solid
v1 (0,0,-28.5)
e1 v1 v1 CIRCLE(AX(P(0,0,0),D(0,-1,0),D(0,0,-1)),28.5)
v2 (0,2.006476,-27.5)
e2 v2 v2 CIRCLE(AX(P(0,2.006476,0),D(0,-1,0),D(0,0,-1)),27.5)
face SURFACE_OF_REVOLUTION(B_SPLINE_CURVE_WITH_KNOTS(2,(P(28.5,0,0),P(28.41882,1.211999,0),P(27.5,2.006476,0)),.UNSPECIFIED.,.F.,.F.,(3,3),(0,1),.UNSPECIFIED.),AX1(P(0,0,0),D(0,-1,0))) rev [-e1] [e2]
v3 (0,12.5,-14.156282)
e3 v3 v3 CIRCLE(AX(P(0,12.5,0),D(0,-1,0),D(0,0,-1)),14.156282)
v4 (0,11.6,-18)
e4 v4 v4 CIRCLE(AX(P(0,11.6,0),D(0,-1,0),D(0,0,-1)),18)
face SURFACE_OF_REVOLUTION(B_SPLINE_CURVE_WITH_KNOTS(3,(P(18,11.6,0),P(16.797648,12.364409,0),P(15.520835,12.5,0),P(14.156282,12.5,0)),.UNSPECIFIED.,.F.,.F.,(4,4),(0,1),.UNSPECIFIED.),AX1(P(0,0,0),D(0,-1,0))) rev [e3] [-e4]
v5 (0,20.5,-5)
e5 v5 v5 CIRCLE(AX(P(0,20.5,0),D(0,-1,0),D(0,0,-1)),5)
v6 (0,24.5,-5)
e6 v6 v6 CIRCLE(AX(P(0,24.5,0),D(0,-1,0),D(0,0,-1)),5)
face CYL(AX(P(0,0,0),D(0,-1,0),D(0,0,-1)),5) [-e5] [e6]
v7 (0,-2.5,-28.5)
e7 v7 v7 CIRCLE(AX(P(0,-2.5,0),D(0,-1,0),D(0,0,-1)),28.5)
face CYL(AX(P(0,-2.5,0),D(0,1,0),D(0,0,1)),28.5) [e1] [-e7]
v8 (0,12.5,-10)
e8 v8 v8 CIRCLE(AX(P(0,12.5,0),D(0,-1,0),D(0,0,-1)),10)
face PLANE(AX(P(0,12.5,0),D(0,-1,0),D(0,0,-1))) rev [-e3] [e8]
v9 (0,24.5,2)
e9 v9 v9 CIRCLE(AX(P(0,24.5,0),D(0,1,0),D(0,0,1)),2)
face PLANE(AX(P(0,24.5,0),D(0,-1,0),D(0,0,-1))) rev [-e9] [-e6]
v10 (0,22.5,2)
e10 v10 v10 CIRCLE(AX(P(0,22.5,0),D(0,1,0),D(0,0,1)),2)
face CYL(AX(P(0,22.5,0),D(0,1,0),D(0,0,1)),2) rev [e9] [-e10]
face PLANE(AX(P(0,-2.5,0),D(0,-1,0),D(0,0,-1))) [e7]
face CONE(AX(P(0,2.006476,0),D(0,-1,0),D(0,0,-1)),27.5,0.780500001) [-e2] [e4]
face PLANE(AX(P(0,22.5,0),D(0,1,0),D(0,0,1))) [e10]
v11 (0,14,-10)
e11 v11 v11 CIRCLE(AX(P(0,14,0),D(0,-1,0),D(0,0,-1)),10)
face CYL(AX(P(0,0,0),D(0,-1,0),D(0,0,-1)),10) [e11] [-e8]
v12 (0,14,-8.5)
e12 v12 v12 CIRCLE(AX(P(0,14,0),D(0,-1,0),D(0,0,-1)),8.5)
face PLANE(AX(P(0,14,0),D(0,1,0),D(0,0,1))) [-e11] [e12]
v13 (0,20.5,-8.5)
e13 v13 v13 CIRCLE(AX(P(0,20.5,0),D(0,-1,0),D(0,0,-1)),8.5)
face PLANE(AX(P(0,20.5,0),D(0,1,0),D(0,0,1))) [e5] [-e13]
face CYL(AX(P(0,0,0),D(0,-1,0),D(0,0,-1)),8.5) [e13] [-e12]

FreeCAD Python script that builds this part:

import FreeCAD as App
import Part
import Sketcher

V = App.Vector

doc = App.newDocument("Part")
body = doc.addObject("PartDesign::Body", "Body")

# Sketch on XY plane
sketch1 = doc.addObject("Sketcher::SketchObject", "Sketch")
body.addObject(sketch1)
sketch1.AttachmentSupport = (doc.XY_Plane, [""])
sketch1.MapMode = "FlatFace"
sketch1.addGeometry(Part.LineSegment(V(0, 24.5, 0), V(0, 0, 0)), False)
sketch1.addGeometry(Part.LineSegment(V(0, 0, 0), V(28.5, 0, 0)), False)
sketch1.addGeometry(Part.BSplineCurve([V(28.5, 0, 0), V(28.41882, 1.211999, 0), V(27.5, 2.006476, 0)], [3, 3], [0, 1], False, 2, [1, 1, 1], False), False)
sketch1.addGeometry(Part.LineSegment(V(27.5, 2.006476, 0), V(18, 11.6, 0)), False)
sketch1.addGeometry(Part.BSplineCurve([V(18, 11.6, 0), V(16.797648, 12.364409, 0), V(15.520835, 12.5, 0), V(14.156282, 12.5, 0)], [4, 4], [0, 1], False, 3, [1, 1, 1, 1], False), False)
sketch1.addGeometry(Part.LineSegment(V(14.156282, 12.5, 0), V(10, 12.5, 0)), False)
sketch1.addGeometry(Part.LineSegment(V(10, 12.5, 0), V(10, 14, 0)), False)
sketch1.addGeometry(Part.LineSegment(V(10, 14, 0), V(8.5, 14, 0)), False)
sketch1.addGeometry(Part.LineSegment(V(8.5, 14, 0), V(8.5, 20.5, 0)), False)
sketch1.addGeometry(Part.LineSegment(V(8.5, 20.5, 0), V(5, 20.5, 0)), False)
sketch1.addGeometry(Part.LineSegment(V(5, 20.5, 0), V(5, 24.5, 0)), False)
sketch1.addGeometry(Part.LineSegment(V(5, 24.5, 0), V(0, 24.5, 0)), False)
sketch1.addConstraint(Sketcher.Constraint("Block", 2))
sketch1.addConstraint(Sketcher.Constraint("Block", 4))
sketch1.addConstraint(Sketcher.Constraint("Coincident", 0, 2, 1, 1))
sketch1.addConstraint(Sketcher.Constraint("Coincident", 1, 2, 2, 1))
sketch1.addConstraint(Sketcher.Constraint("Coincident", 2, 2, 3, 1))
sketch1.addConstraint(Sketcher.Constraint("Coincident", 3, 2, 4, 1))
sketch1.addConstraint(Sketcher.Constraint("Coincident", 4, 2, 5, 1))
sketch1.addConstraint(Sketcher.Constraint("Coincident", 5, 2, 6, 1))
sketch1.addConstraint(Sketcher.Constraint("Coincident", 6, 2, 7, 1))
sketch1.addConstraint(Sketcher.Constraint("Coincident", 7, 2, 8, 1))
sketch1.addConstraint(Sketcher.Constraint("Coincident", 8, 2, 9, 1))
sketch1.addConstraint(Sketcher.Constraint("Coincident", 9, 2, 10, 1))
sketch1.addConstraint(Sketcher.Constraint("Coincident", 10, 2, 11, 1))
sketch1.addConstraint(Sketcher.Constraint("Coincident", 11, 2, 0, 1))
sketch1.addConstraint(Sketcher.Constraint("Vertical", 0))
sketch1.addConstraint(Sketcher.Constraint("Horizontal", 1))
sketch1.addConstraint(Sketcher.Constraint("Horizontal", 5))
sketch1.addConstraint(Sketcher.Constraint("Vertical", 6))
sketch1.addConstraint(Sketcher.Constraint("Horizontal", 7))
sketch1.addConstraint(Sketcher.Constraint("Vertical", 8))
sketch1.addConstraint(Sketcher.Constraint("Horizontal", 9))
sketch1.addConstraint(Sketcher.Constraint("Vertical", 10))
sketch1.addConstraint(Sketcher.Constraint("Horizontal", 11))
sketch1.addConstraint(Sketcher.Constraint("PointOnObject", 11, 2, -2))
sketch1.addConstraint(Sketcher.Constraint("Equal", 7, 6))
sketch1.addConstraint(Sketcher.Constraint("DistanceX", 11, 2, 11, 1, 5.0))
sketch1.addConstraint(Sketcher.Constraint("DistanceY", 10, 1, 10, 2, 4.0))
sketch1.addConstraint(Sketcher.Constraint("DistanceX", 7, 2, 7, 1, 1.5))
sketch1.addConstraint(Sketcher.Constraint("DistanceX", 9, 2, 9, 1, 3.5))
sketch1.addConstraint(Sketcher.Constraint("DistanceY", 0, 2, 0, 1, 24.5))
revolution = doc.addObject("PartDesign::Revolution", "Revolution")
body.addObject(revolution)
revolution.Profile = sketch1
revolution.ReferenceAxis = (sketch1, ["V_Axis"])
revolution.Angle = 360

# Sketch on XZ plane
sketch2 = doc.addObject("Sketcher::SketchObject", "Sketch001")
body.addObject(sketch2)
sketch2.AttachmentSupport = (doc.XZ_Plane, [""])
sketch2.MapMode = "FlatFace"
sketch2.addGeometry(Part.Circle(V(0, 0, 0), V(0, 0, 1), 28.5), False)
sketch2.addConstraint(Sketcher.Constraint("Coincident", 0, 3, -1, 1))
sketch2.addConstraint(Sketcher.Constraint("Diameter", 0, 57.0))
pad1 = doc.addObject("PartDesign::Pad", "Pad")
body.addObject(pad1)
pad1.Profile = sketch2
pad1.Length = 2.5

# Sketch on XZ plane
sketch3 = doc.addObject("Sketcher::SketchObject", "Sketch002")
body.addObject(sketch3)
sketch3.AttachmentSupport = (doc.XZ_Plane, [""])
sketch3.MapMode = "FlatFace"
sketch3.AttachmentOffset = App.Placement(V(0, 0, -24.5), App.Rotation())
sketch3.addGeometry(Part.Circle(V(0, 0, 0), V(0, 0, 1), 2), False)
sketch3.addConstraint(Sketcher.Constraint("Coincident", 0, 3, -1, 1))
sketch3.addConstraint(Sketcher.Constraint("Diameter", 0, 4.0))
pocket1 = doc.addObject("PartDesign::Pocket", "Pocket")
body.addObject(pocket1)
pocket1.Profile = sketch3
pocket1.Length = 2
pocket1.Reversed = True

doc.recompute()
